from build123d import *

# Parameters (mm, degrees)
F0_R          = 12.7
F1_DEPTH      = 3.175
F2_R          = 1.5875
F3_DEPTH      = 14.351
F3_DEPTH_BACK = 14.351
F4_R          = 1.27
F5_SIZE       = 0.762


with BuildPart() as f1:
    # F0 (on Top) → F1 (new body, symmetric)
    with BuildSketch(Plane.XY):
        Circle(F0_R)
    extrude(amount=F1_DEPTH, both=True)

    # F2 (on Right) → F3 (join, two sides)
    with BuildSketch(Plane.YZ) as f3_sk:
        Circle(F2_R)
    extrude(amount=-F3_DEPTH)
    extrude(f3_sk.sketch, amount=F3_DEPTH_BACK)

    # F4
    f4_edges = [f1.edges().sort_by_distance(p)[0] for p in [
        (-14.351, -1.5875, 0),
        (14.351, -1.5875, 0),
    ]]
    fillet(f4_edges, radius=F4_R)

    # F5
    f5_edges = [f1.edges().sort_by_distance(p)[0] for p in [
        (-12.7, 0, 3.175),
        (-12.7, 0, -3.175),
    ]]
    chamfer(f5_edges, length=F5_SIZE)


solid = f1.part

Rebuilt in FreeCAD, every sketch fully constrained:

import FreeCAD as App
import Part
import Sketcher
Q = App.Units.Quantity


def edges_at(feature, points):
    """Names of the edges that pass closest to the given points."""
    edges = feature.Shape.Edges
    near = lambda p: min(range(len(edges)), key=lambda i: edges[i].distToShape(Part.Vertex(*p))[0])
    return sorted({f"Edge{near(p) + 1}" for p in points})

doc = App.newDocument("Part")
params = doc.addObject("Spreadsheet::Sheet", "Params")
for row, (alias, value) in enumerate([
    ("sketch1_diameter", "1 in"),
    ("pad1_length", "0.25 in"),
    ("sketch2_diameter", "0.125 in"),
    ("pad2_length", "0.565 in"),
    ("pad2_length2", "0.565 in"),
    ("fillet_radius", "0.05 in"),
    ("chamfer_size", "0.03 in"),
], start=1):
    params.set(f"A{row}", alias)
    params.set(f"B{row}", "=" + value)
    params.setAlias(f"B{row}", alias)

body = doc.addObject("PartDesign::Body", "Body")

sketch1 = body.newObject("Sketcher::SketchObject", "Sketch")
sketch1.AttachmentSupport = (doc.getObject("XY_Plane"), [""])
sketch1.MapMode = "FlatFace"
sketch1.addGeometry(Part.Circle(App.Vector(0, 0, 0), App.Vector(0, 0, 1), 13), False)
sketch1.addConstraint([
    Sketcher.Constraint("Coincident", 0, 3, -1, 1),
    Sketcher.Constraint("Diameter", 0, Q("1 in")),
])
sketch1.setExpression("Constraints[1]", "Params.sketch1_diameter")
pad1 = body.newObject("PartDesign::Pad", "Pad")
pad1.Profile = sketch1
pad1.setExpression("Length", "Params.pad1_length")
pad1.Midplane = True

sketch2 = body.newObject("Sketcher::SketchObject", "Sketch001")
sketch2.AttachmentSupport = (doc.getObject("YZ_Plane"), [""])
sketch2.MapMode = "FlatFace"
sketch2.addGeometry(Part.Circle(App.Vector(0, 0, 0), App.Vector(0, 0, 1), 1.6), False)
sketch2.addConstraint([
    Sketcher.Constraint("Coincident", 0, 3, -1, 1),
    Sketcher.Constraint("Diameter", 0, Q("0.125 in")),
])
sketch2.setExpression("Constraints[1]", "Params.sketch2_diameter")
pad2 = body.newObject("PartDesign::Pad", "Pad001")
pad2.Profile = sketch2
pad2.Type = "TwoLengths"
pad2.setExpression("Length", "Params.pad2_length")
pad2.setExpression("Length2", "Params.pad2_length2")
pad2.Reversed = True
doc.recompute()

fillet = body.newObject("PartDesign::Fillet", "Fillet")
fillet.Base = (pad2, edges_at(pad2, [(-14.351, -1.587, 0), (14.351, -1.587, 0)]))
fillet.setExpression("Radius", "Params.fillet_radius")
doc.recompute()

chamfer = body.newObject("PartDesign::Chamfer", "Chamfer")
chamfer.Base = (fillet, edges_at(fillet, [(-12.7, 0, 3.175), (-12.7, 0, -3.175)]))
chamfer.setExpression("Size", "Params.chamfer_size")

doc.recompute()
